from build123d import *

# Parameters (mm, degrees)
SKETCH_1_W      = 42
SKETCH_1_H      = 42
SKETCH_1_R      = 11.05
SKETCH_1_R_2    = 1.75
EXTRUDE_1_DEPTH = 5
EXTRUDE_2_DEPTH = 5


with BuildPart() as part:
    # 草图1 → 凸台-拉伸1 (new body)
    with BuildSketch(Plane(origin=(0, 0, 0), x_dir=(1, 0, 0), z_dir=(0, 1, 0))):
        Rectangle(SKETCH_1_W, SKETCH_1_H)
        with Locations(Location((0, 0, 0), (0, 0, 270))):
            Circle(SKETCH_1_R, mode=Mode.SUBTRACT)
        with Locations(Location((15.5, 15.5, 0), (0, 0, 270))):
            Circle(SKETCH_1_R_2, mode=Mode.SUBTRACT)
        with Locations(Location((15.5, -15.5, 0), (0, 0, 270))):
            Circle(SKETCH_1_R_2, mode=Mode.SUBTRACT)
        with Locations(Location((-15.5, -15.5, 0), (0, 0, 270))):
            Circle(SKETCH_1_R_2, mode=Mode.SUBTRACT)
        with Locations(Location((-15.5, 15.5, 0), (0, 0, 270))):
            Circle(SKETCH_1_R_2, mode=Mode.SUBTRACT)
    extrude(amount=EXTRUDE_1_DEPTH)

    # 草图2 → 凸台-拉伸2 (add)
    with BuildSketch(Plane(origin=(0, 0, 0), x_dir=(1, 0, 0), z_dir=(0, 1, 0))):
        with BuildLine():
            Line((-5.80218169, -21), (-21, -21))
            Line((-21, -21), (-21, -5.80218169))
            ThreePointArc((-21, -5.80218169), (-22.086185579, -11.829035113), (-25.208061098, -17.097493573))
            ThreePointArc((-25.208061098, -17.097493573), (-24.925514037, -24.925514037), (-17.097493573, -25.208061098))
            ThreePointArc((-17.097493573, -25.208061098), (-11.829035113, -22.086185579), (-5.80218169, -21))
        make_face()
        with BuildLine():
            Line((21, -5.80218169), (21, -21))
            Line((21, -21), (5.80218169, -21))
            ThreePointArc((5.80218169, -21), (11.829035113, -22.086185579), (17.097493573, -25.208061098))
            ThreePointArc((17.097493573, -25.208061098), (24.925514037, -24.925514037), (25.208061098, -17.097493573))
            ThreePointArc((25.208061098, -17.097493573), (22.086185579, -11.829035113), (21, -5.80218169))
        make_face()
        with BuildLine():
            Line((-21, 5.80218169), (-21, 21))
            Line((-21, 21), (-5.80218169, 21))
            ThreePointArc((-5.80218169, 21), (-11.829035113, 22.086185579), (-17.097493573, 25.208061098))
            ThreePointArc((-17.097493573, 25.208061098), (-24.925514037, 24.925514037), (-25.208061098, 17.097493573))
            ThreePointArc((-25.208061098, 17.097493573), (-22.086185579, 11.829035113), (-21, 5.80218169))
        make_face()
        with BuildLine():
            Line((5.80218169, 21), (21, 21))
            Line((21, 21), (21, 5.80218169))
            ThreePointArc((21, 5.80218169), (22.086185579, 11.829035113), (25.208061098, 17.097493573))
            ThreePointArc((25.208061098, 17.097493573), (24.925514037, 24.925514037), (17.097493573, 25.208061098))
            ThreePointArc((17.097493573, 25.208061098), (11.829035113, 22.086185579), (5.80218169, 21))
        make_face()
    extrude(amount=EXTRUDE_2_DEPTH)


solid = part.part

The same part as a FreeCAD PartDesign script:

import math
import FreeCAD as App
import Part
import Sketcher
from FreeCAD import Vector


def add_polygon(sketch, points):
    """Adds a closed chain of lines whose ends are joined by coincident constraints."""
    first, n = sketch.GeometryCount, len(points)
    for a, b in zip(points, points[1:] + points[:1]):
        sketch.addGeometry(Part.LineSegment(App.Vector(*a, 0), App.Vector(*b, 0)), False)
    for i in range(n):
        sketch.addConstraint(Sketcher.Constraint("Coincident", first + i, 2, first + (i + 1) % n, 1))

doc = App.newDocument("Part")
body = doc.addObject("PartDesign::Body", "Body")

# Sketch on XZ plane
sketch1 = body.newObject("Sketcher::SketchObject", "Sketch")
sketch1.AttachmentSupport = (doc.getObject("XZ_Plane"), [""])
sketch1.MapMode = "FlatFace"
add_polygon(sketch1, [(-21, -21), (-21, 21), (21, 21), (21, -21)])  # lines 0-3
sketch1.addGeometry(Part.Circle(Vector(-15.5, 15.5, 0), Vector(0, 0, 1), 1.8), False)  # 4
sketch1.addGeometry(Part.Circle(Vector(15.5, 15.5, 0), Vector(0, 0, 1), 1.8), False)  # 5
sketch1.addGeometry(Part.Circle(Vector(-15.5, -15.5, 0), Vector(0, 0, 1), 1.8), False)  # 6
sketch1.addGeometry(Part.Circle(Vector(0, 0, 0), Vector(0, 0, 1), 11.1), False)  # 7
sketch1.addGeometry(Part.Circle(Vector(15.5, -15.5, 0), Vector(0, 0, 1), 1.8), False)  # 8
sketch1.addConstraint([
    Sketcher.Constraint("Vertical", 0),
    Sketcher.Constraint("Horizontal", 1),
    Sketcher.Constraint("Vertical", 2),
    Sketcher.Constraint("Horizontal", 3),
    Sketcher.Constraint("Coincident", 7, 3, -1, 1),
    Sketcher.Constraint("Equal", 4, 5),
    Sketcher.Constraint("Equal", 5, 6),
    Sketcher.Constraint("Equal", 6, 8),
    Sketcher.Constraint("Symmetric", 5, 3, 6, 3, -1, 1),
    Sketcher.Constraint("Symmetric", 4, 3, 8, 3, -1, 1),
    Sketcher.Constraint("Symmetric", 0, 2, 2, 2, -1, 1),
    Sketcher.Constraint("Symmetric", 4, 3, 5, 3, -2),
    Sketcher.Constraint("Equal", 3, 0),
    Sketcher.Constraint("Diameter", 4, 3.5),
    Sketcher.Constraint("Diameter", 7, 22.1),
    Sketcher.Constraint("DistanceX", 1, 1, 1, 2, 42.0),
    Sketcher.Constraint("DistanceX", 4, 3, 5, 3, 31.0),
    Sketcher.Constraint("DistanceY", 6, 3, 4, 3, 31.0),
])
pad1 = body.newObject("PartDesign::Pad", "Pad")
pad1.Profile = sketch1
pad1.Length = 5
pad1.Reversed = True

# Sketch on XZ plane
sketch2 = body.newObject("Sketcher::SketchObject", "Sketch001")
sketch2.AttachmentSupport = (doc.getObject("XZ_Plane"), [""])
sketch2.MapMode = "FlatFace"
sketch2.addGeometry([
    Part.LineSegment(Vector(-6, 21, 0), Vector(-21, 21, 0)),  # 0
    Part.LineSegment(Vector(-21, 21, 0), Vector(-21, 6, 0)),  # 1
    Part.ArcOfCircle(Part.Circle(Vector(-38, 6, 0), Vector(0, 0, 1), 17), math.radians(0), math.radians(41)),  # 2
    Part.ArcOfCircle(Part.Circle(Vector(-21, 21, 0), Vector(0, 0, 1), 6), math.radians(49), math.radians(221)),  # 3
    Part.ArcOfCircle(Part.Circle(Vector(-6, 38, 0), Vector(0, 0, 1), 17), math.radians(-131), math.radians(-90)),  # 4
    Part.LineSegment(Vector(21, 6, 0), Vector(21, 21, 0)),  # 5
    Part.LineSegment(Vector(21, 21, 0), Vector(6, 21, 0)),  # 6
    Part.ArcOfCircle(Part.Circle(Vector(6, 38, 0), Vector(0, 0, 1), 17), math.radians(-90), math.radians(-49)),  # 7
    Part.ArcOfCircle(Part.Circle(Vector(21, 21, 0), Vector(0, 0, 1), 6), math.radians(-41), math.radians(131)),  # 8
    Part.ArcOfCircle(Part.Circle(Vector(38, 6, 0), Vector(0, 0, 1), 17), math.radians(139), math.radians(180)),  # 9
    Part.LineSegment(Vector(-21, -6, 0), Vector(-21, -21, 0)),  # 10
    Part.LineSegment(Vector(-21, -21, 0), Vector(-6, -21, 0)),  # 11
    Part.ArcOfCircle(Part.Circle(Vector(-6, -38, 0), Vector(0, 0, 1), 17), math.radians(90), math.radians(131)),  # 12
    Part.ArcOfCircle(Part.Circle(Vector(-21, -21, 0), Vector(0, 0, 1), 6), math.radians(139), math.radians(311)),  # 13
    Part.ArcOfCircle(Part.Circle(Vector(-38, -6, 0), Vector(0, 0, 1), 17), math.radians(-41), math.radians(0)),  # 14
    Part.LineSegment(Vector(6, -21, 0), Vector(21, -21, 0)),  # 15
    Part.LineSegment(Vector(21, -21, 0), Vector(21, -6, 0)),  # 16
    Part.ArcOfCircle(Part.Circle(Vector(38, -6, 0), Vector(0, 0, 1), 17), math.radians(180), math.radians(221)),  # 17
    Part.ArcOfCircle(Part.Circle(Vector(21, -21, 0), Vector(0, 0, 1), 6), math.radians(-131), math.radians(41)),  # 18
    Part.ArcOfCircle(Part.Circle(Vector(6, -38, 0), Vector(0, 0, 1), 17), math.radians(49), math.radians(90)),  # 19
], False)
sketch2.addConstraint([
    Sketcher.Constraint("Coincident", 0, 2, 1, 1),
    Sketcher.Constraint("Tangent", 1, 2, 2, 1),
    Sketcher.Constraint("Tangent", 2, 2, 3, 2),
    Sketcher.Constraint("Tangent", 3, 1, 4, 1),
    Sketcher.Constraint("Tangent", 4, 2, 0, 1),
    Sketcher.Constraint("Coincident", 5, 2, 6, 1),
    Sketcher.Constraint("Tangent", 6, 2, 7, 1),
    Sketcher.Constraint("Tangent", 7, 2, 8, 2),
    Sketcher.Constraint("Tangent", 8, 1, 9, 1),
    Sketcher.Constraint("Tangent", 9, 2, 5, 1),
    Sketcher.Constraint("Coincident", 10, 2, 11, 1),
    Sketcher.Constraint("Tangent", 11, 2, 12, 1),
    Sketcher.Constraint("Tangent", 12, 2, 13, 2),
    Sketcher.Constraint("Tangent", 13, 1, 14, 1),
    Sketcher.Constraint("Tangent", 14, 2, 10, 1),
    Sketcher.Constraint("Coincident", 15, 2, 16, 1),
    Sketcher.Constraint("Tangent", 16, 2, 17, 1),
    Sketcher.Constraint("Tangent", 17, 2, 18, 2),
    Sketcher.Constraint("Tangent", 18, 1, 19, 1),
    Sketcher.Constraint("Tangent", 19, 2, 15, 1),
    Sketcher.Constraint("Horizontal", 0),
    Sketcher.Constraint("Vertical", 1),
    Sketcher.Constraint("Vertical", 5),
    Sketcher.Constraint("Horizontal", 6),
    Sketcher.Constraint("Vertical", 10),
    Sketcher.Constraint("Horizontal", 11),
    Sketcher.Constraint("Horizontal", 15),
    Sketcher.Constraint("Vertical", 16),
    Sketcher.Constraint("Equal", 2, 4),
    Sketcher.Constraint("Equal", 4, 7),
    Sketcher.Constraint("Equal", 3, 8),
    Sketcher.Constraint("Equal", 7, 9),
    Sketcher.Constraint("Equal", 9, 12),
    Sketcher.Constraint("Equal", 8, 13),
    Sketcher.Constraint("Equal", 12, 14),
    Sketcher.Constraint("Equal", 14, 17),
    Sketcher.Constraint("Equal", 13, 18),
    Sketcher.Constraint("Equal", 17, 19),
    Sketcher.Constraint("Symmetric", 7, 3, 12, 3, -1, 1),
    Sketcher.Constraint("Symmetric", 9, 3, 14, 3, -1, 1),
    Sketcher.Constraint("Symmetric", 2, 3, 17, 3, -1, 1),
    Sketcher.Constraint("Symmetric", 4, 3, 19, 3, -1, 1),
    Sketcher.Constraint("Symmetric", 4, 3, 7, 3, -2),
    Sketcher.Constraint("Symmetric", 2, 3, 9, 3, -2),
    Sketcher.Constraint("Equal", 15, 1),
    Sketcher.Constraint("Radius", 3, 5.75),
    Sketcher.Constraint("DistanceX", 0, 2, -1, 1, 21.0),
    Sketcher.Constraint("DistanceY", -1, 1, 0, 2, 21.0),
    Sketcher.Constraint("Radius", 2, 17.263515),
    Sketcher.Constraint("DistanceX", 0, 2, 0, 1, 15.197818),
])
pad2 = body.newObject("PartDesign::Pad", "Pad001")
pad2.Profile = sketch2
pad2.Length = 5
pad2.Reversed = True

doc.recompute()
